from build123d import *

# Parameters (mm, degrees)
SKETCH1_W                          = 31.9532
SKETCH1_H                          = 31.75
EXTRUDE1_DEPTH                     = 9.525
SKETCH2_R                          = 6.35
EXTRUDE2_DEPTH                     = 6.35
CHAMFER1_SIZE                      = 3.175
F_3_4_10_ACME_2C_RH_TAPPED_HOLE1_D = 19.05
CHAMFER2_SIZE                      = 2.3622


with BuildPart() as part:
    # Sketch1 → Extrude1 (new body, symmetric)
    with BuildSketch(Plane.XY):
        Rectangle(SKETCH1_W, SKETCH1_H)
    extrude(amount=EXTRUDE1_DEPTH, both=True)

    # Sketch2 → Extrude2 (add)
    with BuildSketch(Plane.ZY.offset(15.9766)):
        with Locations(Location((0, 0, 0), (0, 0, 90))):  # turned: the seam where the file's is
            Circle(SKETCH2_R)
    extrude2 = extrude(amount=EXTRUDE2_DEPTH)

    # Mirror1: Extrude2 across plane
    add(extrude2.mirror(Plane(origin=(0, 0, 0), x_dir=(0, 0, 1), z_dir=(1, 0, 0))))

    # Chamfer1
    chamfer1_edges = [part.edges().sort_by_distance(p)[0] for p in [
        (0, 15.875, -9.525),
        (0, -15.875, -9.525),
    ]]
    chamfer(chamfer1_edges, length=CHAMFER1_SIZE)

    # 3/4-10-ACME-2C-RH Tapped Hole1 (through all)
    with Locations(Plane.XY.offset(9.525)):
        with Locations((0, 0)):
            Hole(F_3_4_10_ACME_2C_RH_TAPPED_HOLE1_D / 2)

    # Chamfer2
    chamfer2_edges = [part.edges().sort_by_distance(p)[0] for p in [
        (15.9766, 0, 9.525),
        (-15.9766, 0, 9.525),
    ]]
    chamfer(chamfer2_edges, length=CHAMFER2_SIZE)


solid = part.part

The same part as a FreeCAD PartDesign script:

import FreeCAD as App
import Part
import Sketcher
from FreeCAD import Vector
Q = App.Units.Quantity


def edges_at(feature, points):
    """Names of the edges that pass closest to the given points."""
    edges = feature.Shape.Edges
    near = lambda p: min(range(len(edges)), key=lambda i: edges[i].distToShape(Part.Vertex(*p))[0])
    return sorted({f"Edge{near(p) + 1}" for p in points})


def add_polygon(sketch, points):
    """Adds a closed chain of lines whose ends are joined by coincident constraints."""
    first, n = sketch.GeometryCount, len(points)
    for a, b in zip(points, points[1:] + points[:1]):
        sketch.addGeometry(Part.LineSegment(App.Vector(*a, 0), App.Vector(*b, 0)), False)
    for i in range(n):
        sketch.addConstraint(Sketcher.Constraint("Coincident", first + i, 2, first + (i + 1) % n, 1))

doc = App.newDocument("Part")
params = doc.addObject("Spreadsheet::Sheet", "Params")
for row, (alias, value) in enumerate([
    ("sketch1_height", "1.25 in"),
    ("sketch1_width", "1.258 in"),
    ("pad1_length", "0.75 in"),
    ("sketch2_diameter", "0.5 in"),
    ("pad2_length", "0.25 in"),
    ("chamfer_size", "0.125 in"),
    ("sketch3_diameter", "0.75 in"),
    ("hole_diameter", "0.75 in"),
    ("chamfer2_size", "0.093 in"),
], start=1):
    params.set(f"A{row}", alias)
    params.set(f"B{row}", "=" + value)
    params.setAlias(f"B{row}", alias)

body = doc.addObject("PartDesign::Body", "Body")

sketch1 = doc.addObject("Sketcher::SketchObject", "Sketch")
body.addObject(sketch1)
sketch1.AttachmentSupport = (doc.XY_Plane, [""])
sketch1.MapMode = "FlatFace"
add_polygon(sketch1, [(-16, 16), (-16, -16), (16, -16), (16, 16)])
sketch1.addConstraint([
    Sketcher.Constraint("Vertical", 0),
    Sketcher.Constraint("Horizontal", 1),
    Sketcher.Constraint("Vertical", 2),
    Sketcher.Constraint("Horizontal", 3),
    Sketcher.Constraint("Symmetric", 0, 2, 2, 2, -1, 1),
    Sketcher.Constraint("DistanceY", 0, 2, 0, 1, Q("1.25 in")),
    Sketcher.Constraint("DistanceX", 1, 1, 1, 2, Q("1.258 in")),
])
sketch1.setExpression("Constraints[9]", "Params.sketch1_height")
sketch1.setExpression("Constraints[10]", "Params.sketch1_width")
pad1 = doc.addObject("PartDesign::Pad", "Pad")
body.addObject(pad1)
pad1.Profile = sketch1
pad1.setExpression("Length", "Params.pad1_length")
pad1.Midplane = True

sketch2 = doc.addObject("Sketcher::SketchObject", "Sketch001")
body.addObject(sketch2)
sketch2.AttachmentSupport = (doc.YZ_Plane, [""])
sketch2.MapMode = "FlatFace"
sketch2.AttachmentOffset = App.Placement(Vector(0, 0, -0.629 * 25.4), App.Rotation())
sketch2.addGeometry(Part.Circle(Vector(0, 0, 0), Vector(0, 0, 1), 6), False)
sketch2.addConstraint([
    Sketcher.Constraint("Coincident", 0, 3, -1, 1),
    Sketcher.Constraint("Diameter", 0, Q("0.5 in")),
])
sketch2.setExpression("Constraints[1]", "Params.sketch2_diameter")
pad2 = doc.addObject("PartDesign::Pad", "Pad001")
body.addObject(pad2)
pad2.Profile = sketch2
pad2.setExpression("Length", "Params.pad2_length")
pad2.Reversed = True
doc.recompute()

mirrored = doc.addObject("PartDesign::Mirrored", "Mirrored")
body.addObject(mirrored)
mirrored.Originals = [pad2]
mirrored.MirrorPlane = (doc.YZ_Plane, [""])
body.Tip = mirrored
doc.recompute()

chamfer = doc.addObject("PartDesign::Chamfer", "Chamfer")
body.addObject(chamfer)
chamfer.Base = (mirrored, edges_at(mirrored, [(0, 15.875, -9.525), (0, -15.875, -9.525)]))
chamfer.setExpression("Size", "Params.chamfer_size")

sketch3 = doc.addObject("Sketcher::SketchObject", "Sketch002")
body.addObject(sketch3)
sketch3.AttachmentSupport = (doc.XY_Plane, [""])
sketch3.MapMode = "FlatFace"
sketch3.AttachmentOffset = App.Placement(Vector(0, 0, 0.375 * 25.4), App.Rotation())
sketch3.addGeometry(Part.Circle(Vector(0, 0, 0), Vector(0, 0, 1), 10), False)
sketch3.addConstraint([
    Sketcher.Constraint("Coincident", 0, 3, -1, 1),
    Sketcher.Constraint("Diameter", 0, Q("0.75 in")),
])
sketch3.setExpression("Constraints[1]", "Params.sketch3_diameter")
doc.recompute()
hole = doc.addObject("PartDesign::Hole", "Hole")
body.addObject(hole)
hole.Profile = sketch3
hole.ThreadType = "None"
hole.setExpression("Diameter", "Params.hole_diameter")
hole.DepthType = "ThroughAll"
doc.recompute()

chamfer2 = doc.addObject("PartDesign::Chamfer", "Chamfer001")
body.addObject(chamfer2)
chamfer2.Base = (hole, edges_at(hole, [(15.977, 0, 9.525), (-15.977, 0, 9.525)]))
chamfer2.setExpression("Size", "Params.chamfer2_size")

doc.recompute()
